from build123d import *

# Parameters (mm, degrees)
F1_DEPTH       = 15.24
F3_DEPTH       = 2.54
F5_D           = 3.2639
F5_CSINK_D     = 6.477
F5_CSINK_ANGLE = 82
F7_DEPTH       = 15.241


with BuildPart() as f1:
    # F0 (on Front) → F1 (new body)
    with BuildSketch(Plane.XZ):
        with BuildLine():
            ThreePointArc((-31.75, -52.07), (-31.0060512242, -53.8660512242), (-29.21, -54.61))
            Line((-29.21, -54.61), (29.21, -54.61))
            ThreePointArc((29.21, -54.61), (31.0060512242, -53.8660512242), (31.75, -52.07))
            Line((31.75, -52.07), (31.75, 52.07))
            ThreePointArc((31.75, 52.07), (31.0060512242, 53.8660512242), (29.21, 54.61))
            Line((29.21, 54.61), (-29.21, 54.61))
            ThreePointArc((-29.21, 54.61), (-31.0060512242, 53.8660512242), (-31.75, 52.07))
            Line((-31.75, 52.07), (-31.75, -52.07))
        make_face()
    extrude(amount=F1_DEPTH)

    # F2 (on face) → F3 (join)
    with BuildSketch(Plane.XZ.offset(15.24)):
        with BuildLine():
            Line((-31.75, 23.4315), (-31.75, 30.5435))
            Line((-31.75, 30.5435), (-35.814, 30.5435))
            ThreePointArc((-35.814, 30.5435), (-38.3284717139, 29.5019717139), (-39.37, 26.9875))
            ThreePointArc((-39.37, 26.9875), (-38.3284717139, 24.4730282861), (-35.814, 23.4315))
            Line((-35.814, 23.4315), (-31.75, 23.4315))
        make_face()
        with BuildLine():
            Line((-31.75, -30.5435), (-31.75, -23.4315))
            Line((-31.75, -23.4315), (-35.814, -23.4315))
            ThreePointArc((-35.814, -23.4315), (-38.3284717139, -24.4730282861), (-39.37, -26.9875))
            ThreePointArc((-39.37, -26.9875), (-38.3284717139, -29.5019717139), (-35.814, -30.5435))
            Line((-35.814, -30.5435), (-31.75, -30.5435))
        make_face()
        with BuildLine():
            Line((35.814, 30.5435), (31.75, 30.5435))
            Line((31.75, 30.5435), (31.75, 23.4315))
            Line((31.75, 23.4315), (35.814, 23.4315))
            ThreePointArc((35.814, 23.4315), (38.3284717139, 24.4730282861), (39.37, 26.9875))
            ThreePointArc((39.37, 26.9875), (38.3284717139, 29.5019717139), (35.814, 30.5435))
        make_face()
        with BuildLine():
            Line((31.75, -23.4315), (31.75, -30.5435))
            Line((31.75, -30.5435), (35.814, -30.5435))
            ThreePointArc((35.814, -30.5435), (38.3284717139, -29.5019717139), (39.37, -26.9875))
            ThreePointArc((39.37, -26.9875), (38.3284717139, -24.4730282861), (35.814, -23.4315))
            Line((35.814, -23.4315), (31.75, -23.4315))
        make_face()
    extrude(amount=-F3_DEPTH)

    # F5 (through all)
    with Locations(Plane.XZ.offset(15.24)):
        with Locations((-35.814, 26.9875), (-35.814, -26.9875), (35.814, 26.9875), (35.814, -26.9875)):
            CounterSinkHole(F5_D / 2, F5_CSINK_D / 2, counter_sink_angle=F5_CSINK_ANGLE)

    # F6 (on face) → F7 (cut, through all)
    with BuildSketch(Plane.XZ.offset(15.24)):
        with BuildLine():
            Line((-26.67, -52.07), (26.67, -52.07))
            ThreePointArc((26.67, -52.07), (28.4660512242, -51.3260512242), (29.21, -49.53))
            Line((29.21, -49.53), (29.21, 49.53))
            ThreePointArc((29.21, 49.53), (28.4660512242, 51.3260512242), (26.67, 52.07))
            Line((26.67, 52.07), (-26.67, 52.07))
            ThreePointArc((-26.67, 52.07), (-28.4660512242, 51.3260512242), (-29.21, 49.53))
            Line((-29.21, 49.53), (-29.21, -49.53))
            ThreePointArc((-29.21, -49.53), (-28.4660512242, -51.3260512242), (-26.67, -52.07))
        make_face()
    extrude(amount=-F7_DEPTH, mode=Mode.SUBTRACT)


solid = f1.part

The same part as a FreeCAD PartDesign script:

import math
import FreeCAD as App
import Part
import Sketcher
from FreeCAD import Vector
Q = App.Units.Quantity

doc = App.newDocument("Part")
body = doc.addObject("PartDesign::Body", "Body")

sketch1 = body.newObject("Sketcher::SketchObject", "Sketch")
sketch1.AttachmentSupport = (doc.getObject("XZ_Plane"), [""])
sketch1.MapMode = "FlatFace"
sketch1.addGeometry(Part.ArcOfCircle(Part.Circle(Vector(-29.2, -52.1, 0), Vector(0, 0, 1), 2.5), math.radians(180), math.radians(270)), False)
sketch1.addGeometry(Part.LineSegment(Vector(-29.2, -54.6, 0), Vector(29.2, -54.6, 0)), False)
sketch1.addGeometry(Part.ArcOfCircle(Part.Circle(Vector(29.2, -52.1, 0), Vector(0, 0, 1), 2.5), math.radians(-90), math.radians(0)), False)
sketch1.addGeometry(Part.LineSegment(Vector(31.8, -52.1, 0), Vector(31.8, 52.1, 0)), False)
sketch1.addGeometry(Part.ArcOfCircle(Part.Circle(Vector(29.2, 52.1, 0), Vector(0, 0, 1), 2.5), math.radians(0), math.radians(90)), False)
sketch1.addGeometry(Part.LineSegment(Vector(29.2, 54.6, 0), Vector(-29.2, 54.6, 0)), False)
sketch1.addGeometry(Part.ArcOfCircle(Part.Circle(Vector(-29.2, 52.1, 0), Vector(0, 0, 1), 2.5), math.radians(90), math.radians(180)), False)
sketch1.addGeometry(Part.LineSegment(Vector(-31.8, 52.1, 0), Vector(-31.8, -52.1, 0)), False)
sketch1.addConstraint(Sketcher.Constraint("Tangent", 0, 2, 1, 1))
sketch1.addConstraint(Sketcher.Constraint("Tangent", 1, 2, 2, 1))
sketch1.addConstraint(Sketcher.Constraint("Tangent", 2, 2, 3, 1))
sketch1.addConstraint(Sketcher.Constraint("Tangent", 3, 2, 4, 1))
sketch1.addConstraint(Sketcher.Constraint("Tangent", 4, 2, 5, 1))
sketch1.addConstraint(Sketcher.Constraint("Tangent", 5, 2, 6, 1))
sketch1.addConstraint(Sketcher.Constraint("Tangent", 6, 2, 7, 1))
sketch1.addConstraint(Sketcher.Constraint("Tangent", 7, 2, 0, 1))
sketch1.addConstraint(Sketcher.Constraint("Horizontal", 1))
sketch1.addConstraint(Sketcher.Constraint("Vertical", 3))
sketch1.addConstraint(Sketcher.Constraint("Horizontal", 5))
sketch1.addConstraint(Sketcher.Constraint("Vertical", 7))
sketch1.addConstraint(Sketcher.Constraint("Equal", 0, 2))
sketch1.addConstraint(Sketcher.Constraint("Equal", 2, 4))
sketch1.addConstraint(Sketcher.Constraint("Equal", 4, 6))
sketch1.addConstraint(Sketcher.Constraint("Symmetric", 0, 3, 4, 3, -1, 1))
sketch1.addConstraint(Sketcher.Constraint("Radius", 0, Q("0.1 in")))
sketch1.addConstraint(Sketcher.Constraint("DistanceX", 1, 1, 1, 2, Q("2.3 in")))
sketch1.addConstraint(Sketcher.Constraint("DistanceY", 3, 1, 3, 2, Q("4.1 in")))
pad1 = body.newObject("PartDesign::Pad", "Pad")
pad1.Profile = sketch1
pad1.Length = Q("0.6 in")

sketch2 = body.newObject("Sketcher::SketchObject", "Sketch001")
sketch2.AttachmentSupport = (doc.getObject("XZ_Plane"), [""])
sketch2.MapMode = "FlatFace"
sketch2.AttachmentOffset = App.Placement(Vector(0, 0, 0.6 * 25.4), App.Rotation())
sketch2.addGeometry(Part.LineSegment(Vector(-31.8, 23.4, 0), Vector(-31.8, 30.5, 0)), False)
sketch2.addGeometry(Part.LineSegment(Vector(-31.8, 30.5, 0), Vector(-35.8, 30.5, 0)), False)
sketch2.addGeometry(Part.ArcOfCircle(Part.Circle(Vector(-35.8, 27, 0), Vector(0, 0, 1), 3.6), math.radians(90), math.radians(180)), False)
sketch2.addGeometry(Part.ArcOfCircle(Part.Circle(Vector(-35.8, 27, 0), Vector(0, 0, 1), 3.6), math.radians(180), math.radians(270)), False)
sketch2.addGeometry(Part.LineSegment(Vector(-35.8, 23.4, 0), Vector(-31.8, 23.4, 0)), False)
sketch2.addGeometry(Part.LineSegment(Vector(-31.8, -30.5, 0), Vector(-31.8, -23.4, 0)), False)
sketch2.addGeometry(Part.LineSegment(Vector(-31.8, -23.4, 0), Vector(-35.8, -23.4, 0)), False)
sketch2.addGeometry(Part.ArcOfCircle(Part.Circle(Vector(-35.8, -27, 0), Vector(0, 0, 1), 3.6), math.radians(90), math.radians(180)), False)
sketch2.addGeometry(Part.ArcOfCircle(Part.Circle(Vector(-35.8, -27, 0), Vector(0, 0, 1), 3.6), math.radians(180), math.radians(270)), False)
sketch2.addGeometry(Part.LineSegment(Vector(-35.8, -30.5, 0), Vector(-31.8, -30.5, 0)), False)
sketch2.addGeometry(Part.LineSegment(Vector(35.8, 30.5, 0), Vector(31.8, 30.5, 0)), False)
sketch2.addGeometry(Part.LineSegment(Vector(31.8, 30.5, 0), Vector(31.8, 23.4, 0)), False)
sketch2.addGeometry(Part.LineSegment(Vector(31.8, 23.4, 0), Vector(35.8, 23.4, 0)), False)
sketch2.addGeometry(Part.ArcOfCircle(Part.Circle(Vector(35.8, 27, 0), Vector(0, 0, 1), 3.6), math.radians(-90), math.radians(0)), False)
sketch2.addGeometry(Part.ArcOfCircle(Part.Circle(Vector(35.8, 27, 0), Vector(0, 0, 1), 3.6), math.radians(0), math.radians(90)), False)
sketch2.addGeometry(Part.LineSegment(Vector(31.8, -23.4, 0), Vector(31.8, -30.5, 0)), False)
sketch2.addGeometry(Part.LineSegment(Vector(31.8, -30.5, 0), Vector(35.8, -30.5, 0)), False)
sketch2.addGeometry(Part.ArcOfCircle(Part.Circle(Vector(35.8, -27, 0), Vector(0, 0, 1), 3.6), math.radians(-90), math.radians(0)), False)
sketch2.addGeometry(Part.ArcOfCircle(Part.Circle(Vector(35.8, -27, 0), Vector(0, 0, 1), 3.6), math.radians(0), math.radians(90)), False)
sketch2.addGeometry(Part.LineSegment(Vector(35.8, -23.4, 0), Vector(31.8, -23.4, 0)), False)
sketch2.addConstraint(Sketcher.Constraint("Coincident", 0, 2, 1, 1))
sketch2.addConstraint(Sketcher.Constraint("Tangent", 1, 2, 2, 1))
sketch2.addConstraint(Sketcher.Constraint("Tangent", 2, 2, 3, 1))
sketch2.addConstraint(Sketcher.Constraint("Tangent", 3, 2, 4, 1))
sketch2.addConstraint(Sketcher.Constraint("Coincident", 4, 2, 0, 1))
sketch2.addConstraint(Sketcher.Constraint("Coincident", 5, 2, 6, 1))
sketch2.addConstraint(Sketcher.Constraint("Tangent", 6, 2, 7, 1))
sketch2.addConstraint(Sketcher.Constraint("Tangent", 7, 2, 8, 1))
sketch2.addConstraint(Sketcher.Constraint("Tangent", 8, 2, 9, 1))
sketch2.addConstraint(Sketcher.Constraint("Coincident", 9, 2, 5, 1))
sketch2.addConstraint(Sketcher.Constraint("Coincident", 10, 2, 11, 1))
sketch2.addConstraint(Sketcher.Constraint("Coincident", 11, 2, 12, 1))
sketch2.addConstraint(Sketcher.Constraint("Tangent", 12, 2, 13, 1))
sketch2.addConstraint(Sketcher.Constraint("Tangent", 13, 2, 14, 1))
sketch2.addConstraint(Sketcher.Constraint("Tangent", 14, 2, 10, 1))
sketch2.addConstraint(Sketcher.Constraint("Coincident", 15, 2, 16, 1))
sketch2.addConstraint(Sketcher.Constraint("Tangent", 16, 2, 17, 1))
sketch2.addConstraint(Sketcher.Constraint("Tangent", 17, 2, 18, 1))
sketch2.addConstraint(Sketcher.Constraint("Tangent", 18, 2, 19, 1))
sketch2.addConstraint(Sketcher.Constraint("Coincident", 19, 2, 15, 1))
sketch2.addConstraint(Sketcher.Constraint("Vertical", 0))
sketch2.addConstraint(Sketcher.Constraint("Horizontal", 1))
sketch2.addConstraint(Sketcher.Constraint("Horizontal", 4))
sketch2.addConstraint(Sketcher.Constraint("Vertical", 5))
sketch2.addConstraint(Sketcher.Constraint("Horizontal", 6))
sketch2.addConstraint(Sketcher.Constraint("Horizontal", 9))
sketch2.addConstraint(Sketcher.Constraint("Horizontal", 10))
sketch2.addConstraint(Sketcher.Constraint("Vertical", 11))
sketch2.addConstraint(Sketcher.Constraint("Horizontal", 12))
sketch2.addConstraint(Sketcher.Constraint("Vertical", 15))
sketch2.addConstraint(Sketcher.Constraint("Horizontal", 16))
sketch2.addConstraint(Sketcher.Constraint("Horizontal", 19))
sketch2.addConstraint(Sketcher.Constraint("Equal", 2, 3))
sketch2.addConstraint(Sketcher.Constraint("Equal", 3, 7))
sketch2.addConstraint(Sketcher.Constraint("Equal", 7, 8))
sketch2.addConstraint(Sketcher.Constraint("Equal", 8, 13))
sketch2.addConstraint(Sketcher.Constraint("Equal", 13, 14))
sketch2.addConstraint(Sketcher.Constraint("Equal", 14, 17))
sketch2.addConstraint(Sketcher.Constraint("Equal", 17, 18))
sketch2.addConstraint(Sketcher.Constraint("Symmetric", 7, 3, 13, 3, -1, 1))
sketch2.addConstraint(Sketcher.Constraint("Symmetric", 2, 3, 17, 3, -1, 1))
sketch2.addConstraint(Sketcher.Constraint("Symmetric", 2, 3, 13, 3, -2))
sketch2.addConstraint(Sketcher.Constraint("Horizontal", 14, 3, 2, 2))
sketch2.addConstraint(Sketcher.Constraint("Horizontal", 18, 3, 7, 2))
sketch2.addConstraint(Sketcher.Constraint("Horizontal", 2, 2, 13, 2))
sketch2.addConstraint(Sketcher.Constraint("Horizontal", 7, 2, 17, 2))
sketch2.addConstraint(Sketcher.Constraint("Vertical", 4, 2, 5, 2))
sketch2.addConstraint(Sketcher.Constraint("Vertical", 11, 2, 15, 2))
sketch2.addConstraint(Sketcher.Constraint("Equal", 9, 10))
sketch2.addConstraint(Sketcher.Constraint("Radius", 2, Q("0.14 in")))
sketch2.addConstraint(Sketcher.Constraint("DistanceX", 1, 2, 1, 1, Q("0.16 in")))
sketch2.addConstraint(Sketcher.Constraint("DistanceX", 0, 2, 10, 2, Q("2.5 in")))
sketch2.addConstraint(Sketcher.Constraint("DistanceY", -1, 1, 2, 3, Q("1.0625 in")))
pad2 = body.newObject("PartDesign::Pad", "Pad001")
pad2.Profile = sketch2
pad2.Length = Q("0.1 in")
pad2.Reversed = True

sketch3 = body.newObject("Sketcher::SketchObject", "Sketch002")
sketch3.AttachmentSupport = (doc.getObject("XZ_Plane"), [""])
sketch3.MapMode = "FlatFace"
sketch3.AttachmentOffset = App.Placement(Vector(0, 0, 0.6 * 25.4), App.Rotation())
sketch3.addGeometry(Part.Circle(Vector(-35.8, 27, 0), Vector(0, 0, 1), 1.6), False)
sketch3.addGeometry(Part.Circle(Vector(-35.8, -27, 0), Vector(0, 0, 1), 1.6), False)
sketch3.addGeometry(Part.Circle(Vector(35.8, 27, 0), Vector(0, 0, 1), 1.6), False)
sketch3.addGeometry(Part.Circle(Vector(35.8, -27, 0), Vector(0, 0, 1), 1.6), False)
sketch3.addConstraint(Sketcher.Constraint("Equal", 0, 1))
sketch3.addConstraint(Sketcher.Constraint("Equal", 1, 2))
sketch3.addConstraint(Sketcher.Constraint("Equal", 2, 3))
sketch3.addConstraint(Sketcher.Constraint("Symmetric", 1, 3, 2, 3, -1, 1))
sketch3.addConstraint(Sketcher.Constraint("Symmetric", 0, 3, 3, 3, -1, 1))
sketch3.addConstraint(Sketcher.Constraint("Symmetric", 0, 3, 2, 3, -2))
sketch3.addConstraint(Sketcher.Constraint("Diameter", 0, Q("0.1285 in")))
sketch3.addConstraint(Sketcher.Constraint("DistanceX", 0, 3, -1, 1, Q("1.41 in")))
sketch3.addConstraint(Sketcher.Constraint("DistanceY", -1, 1, 0, 3, Q("1.0625 in")))
doc.recompute()
hole = body.newObject("PartDesign::Hole", "Hole")
hole.Profile = sketch3
hole.ThreadType = "None"
hole.Diameter = Q("0.1285 in")
hole.DepthType = "ThroughAll"
hole.HoleCutType = "Countersink"
hole.HoleCutDiameter = Q("0.255 in")
hole.HoleCutCountersinkAngle = 82

sketch4 = body.newObject("Sketcher::SketchObject", "Sketch003")
sketch4.AttachmentSupport = (doc.getObject("XZ_Plane"), [""])
sketch4.MapMode = "FlatFace"
sketch4.AttachmentOffset = App.Placement(Vector(0, 0, 0.6 * 25.4), App.Rotation())
sketch4.addGeometry(Part.LineSegment(Vector(-26.7, -52.1, 0), Vector(26.7, -52.1, 0)), False)
sketch4.addGeometry(Part.ArcOfCircle(Part.Circle(Vector(26.7, -49.5, 0), Vector(0, 0, 1), 2.5), math.radians(-90), math.radians(0)), False)
sketch4.addGeometry(Part.LineSegment(Vector(29.2, -49.5, 0), Vector(29.2, 49.5, 0)), False)
sketch4.addGeometry(Part.ArcOfCircle(Part.Circle(Vector(26.7, 49.5, 0), Vector(0, 0, 1), 2.5), math.radians(0), math.radians(90)), False)
sketch4.addGeometry(Part.LineSegment(Vector(26.7, 52.1, 0), Vector(-26.7, 52.1, 0)), False)
sketch4.addGeometry(Part.ArcOfCircle(Part.Circle(Vector(-26.7, 49.5, 0), Vector(0, 0, 1), 2.5), math.radians(90), math.radians(180)), False)
sketch4.addGeometry(Part.LineSegment(Vector(-29.2, 49.5, 0), Vector(-29.2, -49.5, 0)), False)
sketch4.addGeometry(Part.ArcOfCircle(Part.Circle(Vector(-26.7, -49.5, 0), Vector(0, 0, 1), 2.5), math.radians(180), math.radians(270)), False)
sketch4.addConstraint(Sketcher.Constraint("Tangent", 0, 2, 1, 1))
sketch4.addConstraint(Sketcher.Constraint("Tangent", 1, 2, 2, 1))
sketch4.addConstraint(Sketcher.Constraint("Tangent", 2, 2, 3, 1))
sketch4.addConstraint(Sketcher.Constraint("Tangent", 3, 2, 4, 1))
sketch4.addConstraint(Sketcher.Constraint("Tangent", 4, 2, 5, 1))
sketch4.addConstraint(Sketcher.Constraint("Tangent", 5, 2, 6, 1))
sketch4.addConstraint(Sketcher.Constraint("Tangent", 6, 2, 7, 1))
sketch4.addConstraint(Sketcher.Constraint("Tangent", 7, 2, 0, 1))
sketch4.addConstraint(Sketcher.Constraint("Horizontal", 0))
sketch4.addConstraint(Sketcher.Constraint("Vertical", 2))
sketch4.addConstraint(Sketcher.Constraint("Horizontal", 4))
sketch4.addConstraint(Sketcher.Constraint("Vertical", 6))
sketch4.addConstraint(Sketcher.Constraint("Equal", 1, 3))
sketch4.addConstraint(Sketcher.Constraint("Equal", 3, 5))
sketch4.addConstraint(Sketcher.Constraint("Equal", 5, 7))
sketch4.addConstraint(Sketcher.Constraint("Symmetric", 1, 3, 5, 3, -1, 1))
sketch4.addConstraint(Sketcher.Constraint("Radius", 1, Q("0.1 in")))
sketch4.addConstraint(Sketcher.Constraint("DistanceX", 0, 1, 0, 2, Q("2.1 in")))
sketch4.addConstraint(Sketcher.Constraint("DistanceY", 2, 1, 2, 2, Q("3.9 in")))
pocket1 = body.newObject("PartDesign::Pocket", "Pocket")
pocket1.Profile = sketch4
pocket1.Type = "ThroughAll"

doc.recompute()
